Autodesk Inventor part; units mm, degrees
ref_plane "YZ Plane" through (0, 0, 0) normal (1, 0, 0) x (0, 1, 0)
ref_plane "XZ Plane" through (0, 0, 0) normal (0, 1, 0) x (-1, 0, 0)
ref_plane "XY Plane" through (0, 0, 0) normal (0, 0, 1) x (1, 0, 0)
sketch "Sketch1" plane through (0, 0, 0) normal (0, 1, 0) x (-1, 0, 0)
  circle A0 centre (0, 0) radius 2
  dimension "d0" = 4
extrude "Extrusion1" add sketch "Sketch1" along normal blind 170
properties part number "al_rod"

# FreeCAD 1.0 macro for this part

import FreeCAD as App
import Part
import Sketcher

V = App.Vector

doc = App.newDocument("Part")
body = doc.addObject("PartDesign::Body", "Body")

# Sketch on XZ plane
sketch1 = body.newObject("Sketcher::SketchObject", "Sketch")
sketch1.AttachmentSupport = (doc.getObject("XZ_Plane"), [""])
sketch1.MapMode = "FlatFace"
sketch1.addGeometry(Part.Circle(V(0, 0, 0), V(0, 0, 1), 2), False)
sketch1.addConstraint([
    Sketcher.Constraint("Coincident", 0, 3, -1, 1),
    Sketcher.Constraint("Diameter", 0, 4.0),
])
pad1 = body.newObject("PartDesign::Pad", "Pad")
pad1.Profile = sketch1
pad1.Length = 170
pad1.Reversed = True

doc.recompute()
